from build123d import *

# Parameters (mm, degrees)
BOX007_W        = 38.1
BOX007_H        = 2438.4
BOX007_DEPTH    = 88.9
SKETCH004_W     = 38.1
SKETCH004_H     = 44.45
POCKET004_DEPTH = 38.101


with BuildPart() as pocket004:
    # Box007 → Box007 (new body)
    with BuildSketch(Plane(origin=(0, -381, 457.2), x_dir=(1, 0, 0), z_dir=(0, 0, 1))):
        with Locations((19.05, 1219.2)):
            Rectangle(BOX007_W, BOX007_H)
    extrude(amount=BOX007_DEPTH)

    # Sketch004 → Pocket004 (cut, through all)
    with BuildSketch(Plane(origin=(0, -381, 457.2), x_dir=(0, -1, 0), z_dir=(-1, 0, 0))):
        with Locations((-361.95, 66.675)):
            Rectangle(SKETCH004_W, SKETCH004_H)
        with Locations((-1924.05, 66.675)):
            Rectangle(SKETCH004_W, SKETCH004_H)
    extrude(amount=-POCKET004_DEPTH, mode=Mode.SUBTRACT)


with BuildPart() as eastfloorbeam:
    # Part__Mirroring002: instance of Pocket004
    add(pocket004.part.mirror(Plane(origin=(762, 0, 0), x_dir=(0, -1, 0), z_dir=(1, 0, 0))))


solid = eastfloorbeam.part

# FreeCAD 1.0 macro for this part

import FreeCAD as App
import Part
import Sketcher

V = App.Vector
Q = App.Units.Quantity

doc = App.newDocument("Part")
params = doc.addObject("Spreadsheet::Sheet", "Params")
for row, (alias, value) in enumerate([
    ("sketch1_height", "96 in"),
    ("sketch1_width", "1.5 in"),
    ("pad1_length", "3.5 in"),
    ("sketch2_width", "1.5 in"),
    ("sketch2_height", "1.75 in"),
], start=1):
    params.set(f"A{row}", alias)
    params.set(f"B{row}", "=" + value)
    params.setAlias(f"B{row}", alias)

body = doc.addObject("PartDesign::Body", "Body")

# Sketch on XY plane
sketch1 = body.newObject("Sketcher::SketchObject", "Sketch")
sketch1.AttachmentSupport = (doc.getObject("XY_Plane"), [""])
sketch1.MapMode = "FlatFace"
sketch1.AttachmentOffset = App.Placement(V(0, 0, 18 * 25.4), App.Rotation())
sketch1.addGeometry([
    Part.LineSegment(V(0, 2057, 0), V(0, -381, 0)),
    Part.LineSegment(V(0, -381, 0), V(38, -381, 0)),
    Part.LineSegment(V(38, -381, 0), V(38, 2057, 0)),
    Part.LineSegment(V(38, 2057, 0), V(0, 2057, 0)),
], False)
sketch1.addConstraint([
    Sketcher.Constraint("Coincident", 0, 2, 1, 1),
    Sketcher.Constraint("Coincident", 1, 2, 2, 1),
    Sketcher.Constraint("Coincident", 2, 2, 3, 1),
    Sketcher.Constraint("Coincident", 3, 2, 0, 1),
    Sketcher.Constraint("Vertical", 0),
    Sketcher.Constraint("Horizontal", 1),
    Sketcher.Constraint("Vertical", 2),
    Sketcher.Constraint("Horizontal", 3),
    Sketcher.Constraint("PointOnObject", 0, 2, -2),
    Sketcher.Constraint("DistanceY", 0, 2, 0, 1, Q("96 in")),
    Sketcher.Constraint("DistanceX", 1, 1, 1, 2, Q("1.5 in")),
    Sketcher.Constraint("DistanceY", 0, 2, -1, 1, Q("15 in")),
])
sketch1.setExpression("Constraints[9]", "Params.sketch1_height")
sketch1.setExpression("Constraints[10]", "Params.sketch1_width")
pad1 = body.newObject("PartDesign::Pad", "Pad")
pad1.Profile = sketch1
pad1.setExpression("Length", "Params.pad1_length")

# Sketch on YZ plane
sketch2 = body.newObject("Sketcher::SketchObject", "Sketch001")
sketch2.AttachmentSupport = (doc.getObject("YZ_Plane"), [""])
sketch2.MapMode = "FlatFace"
sketch2.addGeometry([
    Part.LineSegment(V(0, 546, 0), V(0, 502, 0)),  # 0
    Part.LineSegment(V(0, 502, 0), V(-38, 502, 0)),  # 1
    Part.LineSegment(V(-38, 502, 0), V(-38, 546, 0)),  # 2
    Part.LineSegment(V(-38, 546, 0), V(0, 546, 0)),  # 3
    Part.LineSegment(V(1562, 546, 0), V(1562, 502, 0)),  # 4
    Part.LineSegment(V(1562, 502, 0), V(1524, 502, 0)),  # 5
    Part.LineSegment(V(1524, 502, 0), V(1524, 546, 0)),  # 6
    Part.LineSegment(V(1524, 546, 0), V(1562, 546, 0)),  # 7
], False)
sketch2.addConstraint([
    Sketcher.Constraint("Coincident", 0, 2, 1, 1),
    Sketcher.Constraint("Coincident", 1, 2, 2, 1),
    Sketcher.Constraint("Coincident", 2, 2, 3, 1),
    Sketcher.Constraint("Coincident", 3, 2, 0, 1),
    Sketcher.Constraint("Coincident", 4, 2, 5, 1),
    Sketcher.Constraint("Coincident", 5, 2, 6, 1),
    Sketcher.Constraint("Coincident", 6, 2, 7, 1),
    Sketcher.Constraint("Coincident", 7, 2, 4, 1),
    Sketcher.Constraint("Vertical", 0),
    Sketcher.Constraint("Horizontal", 1),
    Sketcher.Constraint("Vertical", 2),
    Sketcher.Constraint("Horizontal", 3),
    Sketcher.Constraint("Vertical", 4),
    Sketcher.Constraint("Horizontal", 5),
    Sketcher.Constraint("Vertical", 6),
    Sketcher.Constraint("Horizontal", 7),
    Sketcher.Constraint("PointOnObject", 0, 2, -2),
    Sketcher.Constraint("Horizontal", 1, 2, 4, 2),
    Sketcher.Constraint("Horizontal", 3, 2, 6, 2),
    Sketcher.Constraint("Equal", 3, 5),
    Sketcher.Constraint("DistanceX", 1, 2, 1, 1, Q("1.5 in")),
    Sketcher.Constraint("DistanceX", -1, 1, 5, 2, Q("60 in")),
    Sketcher.Constraint("DistanceY", 0, 2, 0, 1, Q("1.75 in")),
    Sketcher.Constraint("DistanceY", -1, 1, 2, 2, Q("21.5 in")),
])
sketch2.setExpression("Constraints[20]", "Params.sketch2_width")
sketch2.setExpression("Constraints[22]", "Params.sketch2_height")
pocket1 = body.newObject("PartDesign::Pocket", "Pocket")
pocket1.Profile = sketch2
pocket1.Type = "ThroughAll"
pocket1.Reversed = True
body2 = doc.addObject("PartDesign::Body", "Body001")
doc.recompute()

mirroring = doc.addObject("Part::Mirroring", "Mirroring")
mirroring.Source = body
mirroring.Base = V(762, 0, 0)
mirroring.Normal = V(1, 0, 0)
body2.BaseFeature = mirroring
doc.recompute()
body.Visibility = False
mirroring.Visibility = False

doc.recompute()
